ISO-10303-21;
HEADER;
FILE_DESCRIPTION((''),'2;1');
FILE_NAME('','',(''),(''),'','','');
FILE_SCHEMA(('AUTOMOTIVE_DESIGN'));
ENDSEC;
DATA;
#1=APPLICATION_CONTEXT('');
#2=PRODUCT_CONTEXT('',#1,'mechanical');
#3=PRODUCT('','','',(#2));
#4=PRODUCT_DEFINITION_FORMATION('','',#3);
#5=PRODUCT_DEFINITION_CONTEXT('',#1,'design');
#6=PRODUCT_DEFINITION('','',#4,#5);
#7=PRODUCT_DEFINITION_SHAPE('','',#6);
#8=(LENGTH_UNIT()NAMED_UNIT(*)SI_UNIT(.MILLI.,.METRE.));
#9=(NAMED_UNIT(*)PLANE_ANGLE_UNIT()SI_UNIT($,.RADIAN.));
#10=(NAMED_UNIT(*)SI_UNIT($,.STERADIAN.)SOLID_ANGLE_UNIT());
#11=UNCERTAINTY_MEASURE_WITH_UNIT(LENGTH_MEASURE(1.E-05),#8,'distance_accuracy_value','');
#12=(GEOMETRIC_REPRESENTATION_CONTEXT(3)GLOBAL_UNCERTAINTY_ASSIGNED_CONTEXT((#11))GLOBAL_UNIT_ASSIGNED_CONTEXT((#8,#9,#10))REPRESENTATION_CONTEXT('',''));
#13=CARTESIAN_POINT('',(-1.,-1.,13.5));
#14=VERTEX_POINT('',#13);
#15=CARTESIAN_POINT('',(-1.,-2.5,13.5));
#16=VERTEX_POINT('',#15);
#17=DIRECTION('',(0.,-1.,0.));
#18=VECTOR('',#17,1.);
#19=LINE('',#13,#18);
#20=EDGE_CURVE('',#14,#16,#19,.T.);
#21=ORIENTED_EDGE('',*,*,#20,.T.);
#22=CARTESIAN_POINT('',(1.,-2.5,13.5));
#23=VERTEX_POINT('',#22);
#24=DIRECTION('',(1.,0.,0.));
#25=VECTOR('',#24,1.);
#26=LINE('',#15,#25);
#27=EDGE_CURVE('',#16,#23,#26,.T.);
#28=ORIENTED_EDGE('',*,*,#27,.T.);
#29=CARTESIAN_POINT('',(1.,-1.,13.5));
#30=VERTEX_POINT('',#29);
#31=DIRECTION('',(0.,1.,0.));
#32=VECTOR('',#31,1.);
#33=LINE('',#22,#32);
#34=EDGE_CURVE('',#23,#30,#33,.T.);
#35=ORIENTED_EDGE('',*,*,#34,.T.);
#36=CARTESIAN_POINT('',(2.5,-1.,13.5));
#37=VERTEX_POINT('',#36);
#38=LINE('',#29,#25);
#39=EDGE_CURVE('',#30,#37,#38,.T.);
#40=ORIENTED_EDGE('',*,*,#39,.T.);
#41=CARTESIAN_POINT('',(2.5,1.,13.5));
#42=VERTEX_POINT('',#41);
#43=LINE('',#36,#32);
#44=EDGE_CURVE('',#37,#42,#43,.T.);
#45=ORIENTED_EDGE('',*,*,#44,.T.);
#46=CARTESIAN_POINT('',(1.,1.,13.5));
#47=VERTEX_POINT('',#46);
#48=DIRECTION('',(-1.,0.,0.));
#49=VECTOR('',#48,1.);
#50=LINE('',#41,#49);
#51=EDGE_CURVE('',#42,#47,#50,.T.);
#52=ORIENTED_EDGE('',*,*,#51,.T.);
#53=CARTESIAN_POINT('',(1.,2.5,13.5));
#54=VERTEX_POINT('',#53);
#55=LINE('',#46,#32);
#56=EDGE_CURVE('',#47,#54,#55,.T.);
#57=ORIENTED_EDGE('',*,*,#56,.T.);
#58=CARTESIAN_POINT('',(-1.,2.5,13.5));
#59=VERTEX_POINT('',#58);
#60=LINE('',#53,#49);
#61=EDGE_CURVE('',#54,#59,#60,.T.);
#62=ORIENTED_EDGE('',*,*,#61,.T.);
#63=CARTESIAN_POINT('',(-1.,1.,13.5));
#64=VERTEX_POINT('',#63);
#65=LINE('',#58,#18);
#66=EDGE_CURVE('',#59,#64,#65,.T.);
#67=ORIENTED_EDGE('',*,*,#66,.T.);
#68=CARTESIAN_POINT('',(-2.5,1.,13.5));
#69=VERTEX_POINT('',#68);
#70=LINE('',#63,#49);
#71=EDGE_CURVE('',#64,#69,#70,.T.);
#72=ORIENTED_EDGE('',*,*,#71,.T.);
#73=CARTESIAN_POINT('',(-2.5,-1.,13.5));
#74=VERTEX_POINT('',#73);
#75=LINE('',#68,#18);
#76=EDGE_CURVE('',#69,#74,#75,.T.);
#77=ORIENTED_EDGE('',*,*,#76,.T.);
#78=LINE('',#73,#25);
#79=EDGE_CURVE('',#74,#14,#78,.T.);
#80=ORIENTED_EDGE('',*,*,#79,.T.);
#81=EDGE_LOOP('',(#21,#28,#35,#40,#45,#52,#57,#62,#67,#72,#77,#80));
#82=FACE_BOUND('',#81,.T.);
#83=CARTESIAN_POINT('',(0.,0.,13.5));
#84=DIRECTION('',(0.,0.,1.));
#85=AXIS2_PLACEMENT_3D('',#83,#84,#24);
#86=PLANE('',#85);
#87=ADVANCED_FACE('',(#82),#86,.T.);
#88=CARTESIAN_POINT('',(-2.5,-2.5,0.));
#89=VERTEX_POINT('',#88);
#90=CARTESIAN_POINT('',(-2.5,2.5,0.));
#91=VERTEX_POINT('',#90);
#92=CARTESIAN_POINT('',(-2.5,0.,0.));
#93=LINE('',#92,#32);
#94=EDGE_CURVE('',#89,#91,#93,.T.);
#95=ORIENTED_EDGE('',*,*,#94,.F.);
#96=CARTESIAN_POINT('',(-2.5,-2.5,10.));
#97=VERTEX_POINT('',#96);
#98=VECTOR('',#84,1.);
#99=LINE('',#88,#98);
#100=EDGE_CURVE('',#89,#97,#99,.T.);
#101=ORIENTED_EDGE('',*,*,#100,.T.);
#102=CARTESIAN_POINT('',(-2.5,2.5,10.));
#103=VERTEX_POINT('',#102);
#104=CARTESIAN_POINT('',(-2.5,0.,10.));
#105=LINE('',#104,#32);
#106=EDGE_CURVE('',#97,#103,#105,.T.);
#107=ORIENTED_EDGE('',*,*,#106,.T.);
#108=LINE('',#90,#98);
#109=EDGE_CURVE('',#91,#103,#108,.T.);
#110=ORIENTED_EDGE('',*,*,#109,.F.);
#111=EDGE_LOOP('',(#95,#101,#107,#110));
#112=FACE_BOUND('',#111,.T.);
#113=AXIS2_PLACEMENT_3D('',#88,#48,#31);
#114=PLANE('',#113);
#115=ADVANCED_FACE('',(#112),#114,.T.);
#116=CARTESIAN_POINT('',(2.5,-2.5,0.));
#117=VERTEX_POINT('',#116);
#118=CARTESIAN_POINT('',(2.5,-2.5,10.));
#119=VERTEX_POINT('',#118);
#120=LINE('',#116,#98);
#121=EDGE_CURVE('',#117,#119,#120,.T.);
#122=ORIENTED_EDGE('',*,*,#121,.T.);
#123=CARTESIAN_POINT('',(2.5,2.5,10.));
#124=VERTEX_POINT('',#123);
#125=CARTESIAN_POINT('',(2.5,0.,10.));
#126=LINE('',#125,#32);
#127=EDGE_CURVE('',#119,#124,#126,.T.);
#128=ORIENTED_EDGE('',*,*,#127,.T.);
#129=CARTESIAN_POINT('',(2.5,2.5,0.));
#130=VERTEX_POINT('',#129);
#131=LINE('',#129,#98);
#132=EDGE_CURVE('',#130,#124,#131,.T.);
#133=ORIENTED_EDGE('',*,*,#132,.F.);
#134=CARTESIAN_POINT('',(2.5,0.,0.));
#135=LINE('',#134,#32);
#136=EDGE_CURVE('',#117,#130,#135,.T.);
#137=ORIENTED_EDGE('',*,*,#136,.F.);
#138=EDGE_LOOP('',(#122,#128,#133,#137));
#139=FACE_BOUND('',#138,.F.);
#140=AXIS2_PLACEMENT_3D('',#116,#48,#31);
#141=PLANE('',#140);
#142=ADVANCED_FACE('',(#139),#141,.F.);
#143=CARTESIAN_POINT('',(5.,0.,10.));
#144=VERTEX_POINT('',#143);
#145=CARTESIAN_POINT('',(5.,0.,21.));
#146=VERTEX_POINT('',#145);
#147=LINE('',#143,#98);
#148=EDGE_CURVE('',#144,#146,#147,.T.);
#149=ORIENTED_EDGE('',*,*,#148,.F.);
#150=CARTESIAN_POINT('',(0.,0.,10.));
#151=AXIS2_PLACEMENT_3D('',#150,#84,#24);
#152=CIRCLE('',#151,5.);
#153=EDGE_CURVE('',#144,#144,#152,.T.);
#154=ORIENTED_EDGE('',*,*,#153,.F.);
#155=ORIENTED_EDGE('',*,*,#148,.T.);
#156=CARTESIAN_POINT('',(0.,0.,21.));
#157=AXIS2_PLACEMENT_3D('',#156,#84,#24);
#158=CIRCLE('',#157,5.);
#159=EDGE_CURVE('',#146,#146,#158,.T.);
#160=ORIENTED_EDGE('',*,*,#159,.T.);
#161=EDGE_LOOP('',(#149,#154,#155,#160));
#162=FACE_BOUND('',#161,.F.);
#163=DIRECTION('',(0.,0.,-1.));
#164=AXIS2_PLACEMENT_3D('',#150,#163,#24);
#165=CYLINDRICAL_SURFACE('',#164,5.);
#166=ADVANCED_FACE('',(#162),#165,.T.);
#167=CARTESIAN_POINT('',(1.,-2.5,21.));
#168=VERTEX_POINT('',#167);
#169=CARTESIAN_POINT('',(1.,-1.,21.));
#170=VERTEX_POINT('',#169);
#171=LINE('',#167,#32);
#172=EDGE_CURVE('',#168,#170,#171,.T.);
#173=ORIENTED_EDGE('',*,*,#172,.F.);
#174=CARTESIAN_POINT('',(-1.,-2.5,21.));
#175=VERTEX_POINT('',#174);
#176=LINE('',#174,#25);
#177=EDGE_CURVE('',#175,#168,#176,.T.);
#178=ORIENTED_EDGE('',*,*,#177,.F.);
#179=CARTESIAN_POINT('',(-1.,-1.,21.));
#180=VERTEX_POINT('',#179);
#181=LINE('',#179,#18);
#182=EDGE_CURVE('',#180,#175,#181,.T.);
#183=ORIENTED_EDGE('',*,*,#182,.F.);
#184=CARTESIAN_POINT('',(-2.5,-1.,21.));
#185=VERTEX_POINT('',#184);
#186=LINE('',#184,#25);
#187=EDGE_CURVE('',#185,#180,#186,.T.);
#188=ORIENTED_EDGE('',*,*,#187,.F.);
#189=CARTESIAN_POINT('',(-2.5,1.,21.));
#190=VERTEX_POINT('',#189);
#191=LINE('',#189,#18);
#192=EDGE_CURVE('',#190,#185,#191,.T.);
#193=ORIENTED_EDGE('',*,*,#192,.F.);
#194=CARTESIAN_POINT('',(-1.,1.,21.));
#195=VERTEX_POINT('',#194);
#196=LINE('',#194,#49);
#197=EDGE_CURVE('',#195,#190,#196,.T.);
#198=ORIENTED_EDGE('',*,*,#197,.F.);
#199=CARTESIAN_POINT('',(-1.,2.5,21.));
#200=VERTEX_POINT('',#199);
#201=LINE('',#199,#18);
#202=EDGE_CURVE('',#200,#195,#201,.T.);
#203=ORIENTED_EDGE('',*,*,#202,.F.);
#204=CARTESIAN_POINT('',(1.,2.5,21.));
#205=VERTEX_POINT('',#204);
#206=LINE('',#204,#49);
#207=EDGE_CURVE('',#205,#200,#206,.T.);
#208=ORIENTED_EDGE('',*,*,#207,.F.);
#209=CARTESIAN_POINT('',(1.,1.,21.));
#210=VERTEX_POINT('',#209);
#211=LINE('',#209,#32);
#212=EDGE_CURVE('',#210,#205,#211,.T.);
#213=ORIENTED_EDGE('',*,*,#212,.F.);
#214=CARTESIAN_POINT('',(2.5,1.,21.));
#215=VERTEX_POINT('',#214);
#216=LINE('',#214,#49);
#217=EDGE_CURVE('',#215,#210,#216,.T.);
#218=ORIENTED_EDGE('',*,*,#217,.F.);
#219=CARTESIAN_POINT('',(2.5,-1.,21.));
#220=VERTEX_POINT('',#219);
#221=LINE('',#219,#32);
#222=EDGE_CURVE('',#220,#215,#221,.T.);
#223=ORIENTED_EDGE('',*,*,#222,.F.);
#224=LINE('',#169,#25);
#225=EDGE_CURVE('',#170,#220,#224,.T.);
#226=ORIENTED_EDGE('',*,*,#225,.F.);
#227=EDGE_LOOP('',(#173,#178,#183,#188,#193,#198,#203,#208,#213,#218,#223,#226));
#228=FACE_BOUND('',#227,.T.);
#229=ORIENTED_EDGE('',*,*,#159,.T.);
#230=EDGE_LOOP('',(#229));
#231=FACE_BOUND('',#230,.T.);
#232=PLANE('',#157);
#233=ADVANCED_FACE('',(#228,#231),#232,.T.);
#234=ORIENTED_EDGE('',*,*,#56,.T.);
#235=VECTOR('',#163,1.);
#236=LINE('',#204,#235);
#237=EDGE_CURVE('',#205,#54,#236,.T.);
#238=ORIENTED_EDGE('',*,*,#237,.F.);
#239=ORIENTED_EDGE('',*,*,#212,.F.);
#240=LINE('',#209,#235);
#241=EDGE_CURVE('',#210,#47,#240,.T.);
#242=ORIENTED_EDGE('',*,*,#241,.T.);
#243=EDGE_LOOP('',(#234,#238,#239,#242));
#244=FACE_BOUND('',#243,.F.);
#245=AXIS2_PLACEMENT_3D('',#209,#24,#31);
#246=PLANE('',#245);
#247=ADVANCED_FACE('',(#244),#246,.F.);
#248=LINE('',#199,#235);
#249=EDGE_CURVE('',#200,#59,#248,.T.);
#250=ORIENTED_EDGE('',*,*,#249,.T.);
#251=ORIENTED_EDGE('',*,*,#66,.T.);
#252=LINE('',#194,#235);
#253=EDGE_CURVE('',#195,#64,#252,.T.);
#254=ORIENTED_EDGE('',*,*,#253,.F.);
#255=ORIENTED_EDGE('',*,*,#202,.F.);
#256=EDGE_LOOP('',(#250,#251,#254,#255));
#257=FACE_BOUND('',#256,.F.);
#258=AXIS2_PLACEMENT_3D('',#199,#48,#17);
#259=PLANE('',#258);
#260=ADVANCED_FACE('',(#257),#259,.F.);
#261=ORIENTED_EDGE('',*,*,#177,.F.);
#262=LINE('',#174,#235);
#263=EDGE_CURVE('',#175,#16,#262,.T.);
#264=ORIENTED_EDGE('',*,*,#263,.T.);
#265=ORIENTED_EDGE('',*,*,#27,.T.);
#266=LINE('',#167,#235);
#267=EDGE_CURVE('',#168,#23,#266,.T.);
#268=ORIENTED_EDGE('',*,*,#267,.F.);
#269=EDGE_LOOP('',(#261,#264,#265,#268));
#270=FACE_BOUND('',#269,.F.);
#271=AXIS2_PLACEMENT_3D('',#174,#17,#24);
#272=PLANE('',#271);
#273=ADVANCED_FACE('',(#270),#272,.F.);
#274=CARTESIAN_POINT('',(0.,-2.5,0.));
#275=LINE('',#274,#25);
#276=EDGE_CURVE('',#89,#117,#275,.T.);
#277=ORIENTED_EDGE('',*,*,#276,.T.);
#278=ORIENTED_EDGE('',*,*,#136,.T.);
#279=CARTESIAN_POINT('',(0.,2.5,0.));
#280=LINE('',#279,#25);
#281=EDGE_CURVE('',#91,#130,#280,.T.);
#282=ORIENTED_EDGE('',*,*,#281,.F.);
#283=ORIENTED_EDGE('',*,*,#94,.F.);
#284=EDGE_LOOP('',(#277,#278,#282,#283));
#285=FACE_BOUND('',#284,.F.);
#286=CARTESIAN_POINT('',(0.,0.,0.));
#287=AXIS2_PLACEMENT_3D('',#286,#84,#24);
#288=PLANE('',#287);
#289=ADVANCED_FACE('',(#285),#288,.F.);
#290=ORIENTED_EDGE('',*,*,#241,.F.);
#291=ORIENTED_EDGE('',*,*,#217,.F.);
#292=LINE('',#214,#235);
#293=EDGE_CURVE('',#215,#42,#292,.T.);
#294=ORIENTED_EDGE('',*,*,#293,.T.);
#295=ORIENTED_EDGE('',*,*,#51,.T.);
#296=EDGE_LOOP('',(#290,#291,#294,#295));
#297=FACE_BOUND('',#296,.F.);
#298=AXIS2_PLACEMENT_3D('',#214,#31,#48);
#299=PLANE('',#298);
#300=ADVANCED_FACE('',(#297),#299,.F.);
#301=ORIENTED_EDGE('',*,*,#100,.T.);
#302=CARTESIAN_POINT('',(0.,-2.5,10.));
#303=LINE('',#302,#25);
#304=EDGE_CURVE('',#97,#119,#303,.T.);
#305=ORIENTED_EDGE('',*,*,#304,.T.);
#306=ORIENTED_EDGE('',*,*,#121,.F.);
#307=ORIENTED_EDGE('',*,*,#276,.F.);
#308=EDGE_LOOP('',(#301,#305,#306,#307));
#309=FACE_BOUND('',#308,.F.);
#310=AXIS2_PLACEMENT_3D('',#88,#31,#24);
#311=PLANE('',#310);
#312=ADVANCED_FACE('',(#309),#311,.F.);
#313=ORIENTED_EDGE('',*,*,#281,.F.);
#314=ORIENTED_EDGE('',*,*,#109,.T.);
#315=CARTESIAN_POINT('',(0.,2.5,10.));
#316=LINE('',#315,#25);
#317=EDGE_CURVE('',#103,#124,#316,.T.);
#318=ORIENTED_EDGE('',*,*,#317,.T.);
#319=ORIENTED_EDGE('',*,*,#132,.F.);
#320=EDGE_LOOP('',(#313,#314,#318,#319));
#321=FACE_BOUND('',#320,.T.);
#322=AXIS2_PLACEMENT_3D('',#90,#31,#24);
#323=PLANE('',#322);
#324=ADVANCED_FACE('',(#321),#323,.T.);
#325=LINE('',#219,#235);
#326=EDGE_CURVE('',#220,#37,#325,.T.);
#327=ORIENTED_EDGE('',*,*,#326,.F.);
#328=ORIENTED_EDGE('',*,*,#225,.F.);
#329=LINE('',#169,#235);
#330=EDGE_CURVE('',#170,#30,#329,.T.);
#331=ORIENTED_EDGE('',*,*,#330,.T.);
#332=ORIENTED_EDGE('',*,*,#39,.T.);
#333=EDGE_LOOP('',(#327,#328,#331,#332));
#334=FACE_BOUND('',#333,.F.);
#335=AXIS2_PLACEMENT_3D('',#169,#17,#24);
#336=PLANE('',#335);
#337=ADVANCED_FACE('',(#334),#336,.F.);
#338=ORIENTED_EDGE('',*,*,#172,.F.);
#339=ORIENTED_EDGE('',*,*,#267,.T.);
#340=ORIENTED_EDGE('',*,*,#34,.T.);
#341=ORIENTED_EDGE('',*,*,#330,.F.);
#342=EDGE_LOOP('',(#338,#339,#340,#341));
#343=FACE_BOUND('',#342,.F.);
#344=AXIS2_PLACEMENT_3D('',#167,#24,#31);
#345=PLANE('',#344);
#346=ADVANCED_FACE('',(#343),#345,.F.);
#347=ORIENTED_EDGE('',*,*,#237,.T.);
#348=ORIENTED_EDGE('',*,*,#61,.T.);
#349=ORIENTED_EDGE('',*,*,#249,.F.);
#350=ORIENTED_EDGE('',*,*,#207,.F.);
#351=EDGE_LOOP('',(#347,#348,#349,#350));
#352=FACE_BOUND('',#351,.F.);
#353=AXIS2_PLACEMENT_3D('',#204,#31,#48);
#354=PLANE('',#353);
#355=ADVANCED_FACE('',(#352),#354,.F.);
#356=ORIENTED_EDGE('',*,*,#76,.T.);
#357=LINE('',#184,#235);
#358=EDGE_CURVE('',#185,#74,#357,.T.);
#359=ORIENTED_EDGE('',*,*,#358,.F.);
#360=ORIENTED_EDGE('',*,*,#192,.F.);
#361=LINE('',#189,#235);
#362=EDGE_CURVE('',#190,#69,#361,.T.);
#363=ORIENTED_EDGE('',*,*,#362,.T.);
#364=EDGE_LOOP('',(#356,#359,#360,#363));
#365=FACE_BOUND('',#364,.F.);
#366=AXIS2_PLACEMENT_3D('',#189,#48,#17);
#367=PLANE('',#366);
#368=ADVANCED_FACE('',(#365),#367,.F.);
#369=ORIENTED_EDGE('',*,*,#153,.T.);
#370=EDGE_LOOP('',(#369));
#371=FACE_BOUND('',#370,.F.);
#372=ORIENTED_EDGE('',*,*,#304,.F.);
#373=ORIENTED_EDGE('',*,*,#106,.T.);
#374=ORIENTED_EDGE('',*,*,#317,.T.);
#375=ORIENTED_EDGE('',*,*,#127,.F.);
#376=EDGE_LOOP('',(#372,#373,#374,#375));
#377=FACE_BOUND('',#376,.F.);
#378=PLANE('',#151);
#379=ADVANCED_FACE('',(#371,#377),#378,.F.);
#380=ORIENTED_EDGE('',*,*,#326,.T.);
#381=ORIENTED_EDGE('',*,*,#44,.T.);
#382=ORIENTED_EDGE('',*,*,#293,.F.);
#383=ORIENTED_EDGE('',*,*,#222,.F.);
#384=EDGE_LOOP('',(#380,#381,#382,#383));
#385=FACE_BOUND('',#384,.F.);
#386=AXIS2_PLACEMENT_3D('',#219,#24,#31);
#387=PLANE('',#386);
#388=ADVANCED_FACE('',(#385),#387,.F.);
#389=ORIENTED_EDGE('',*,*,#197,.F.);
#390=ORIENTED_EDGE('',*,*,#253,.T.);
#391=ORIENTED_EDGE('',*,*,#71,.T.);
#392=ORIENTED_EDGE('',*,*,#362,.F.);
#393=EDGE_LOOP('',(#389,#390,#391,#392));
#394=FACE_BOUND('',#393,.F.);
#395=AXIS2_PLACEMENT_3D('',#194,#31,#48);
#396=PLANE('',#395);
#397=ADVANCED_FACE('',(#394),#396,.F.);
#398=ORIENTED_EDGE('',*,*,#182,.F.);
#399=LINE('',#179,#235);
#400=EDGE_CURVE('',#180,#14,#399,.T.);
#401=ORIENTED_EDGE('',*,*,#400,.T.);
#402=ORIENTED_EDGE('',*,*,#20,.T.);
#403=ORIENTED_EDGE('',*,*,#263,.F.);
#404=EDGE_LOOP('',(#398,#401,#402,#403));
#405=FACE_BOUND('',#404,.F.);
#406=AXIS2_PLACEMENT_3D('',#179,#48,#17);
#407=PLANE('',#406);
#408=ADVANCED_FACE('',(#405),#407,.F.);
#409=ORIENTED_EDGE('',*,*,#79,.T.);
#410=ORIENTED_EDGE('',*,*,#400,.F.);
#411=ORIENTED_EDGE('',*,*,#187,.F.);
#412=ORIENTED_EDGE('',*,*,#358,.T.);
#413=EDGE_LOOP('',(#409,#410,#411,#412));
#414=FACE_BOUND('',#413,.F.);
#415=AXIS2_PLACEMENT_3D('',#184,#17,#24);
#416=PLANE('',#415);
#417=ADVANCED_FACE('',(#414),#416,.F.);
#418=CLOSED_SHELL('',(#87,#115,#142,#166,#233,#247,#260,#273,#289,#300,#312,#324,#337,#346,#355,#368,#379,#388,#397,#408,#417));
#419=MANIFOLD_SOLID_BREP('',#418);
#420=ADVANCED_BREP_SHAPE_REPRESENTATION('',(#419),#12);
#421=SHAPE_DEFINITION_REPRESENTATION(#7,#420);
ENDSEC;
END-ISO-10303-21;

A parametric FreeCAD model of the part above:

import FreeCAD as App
import Part
import Sketcher
from FreeCAD import Vector

doc = App.newDocument("Part")
body = doc.addObject("PartDesign::Body", "Body")

# Sketch on XY plane
sketch1 = body.newObject("Sketcher::SketchObject", "Sketch")
sketch1.AttachmentSupport = (doc.getObject("XY_Plane"), [""])
sketch1.MapMode = "FlatFace"
sketch1.addGeometry([
    Part.LineSegment(Vector(-2, 2, 0), Vector(-2, -2, 0)),
    Part.LineSegment(Vector(-2, -2, 0), Vector(2, -2, 0)),
    Part.LineSegment(Vector(2, -2, 0), Vector(2, 2, 0)),
    Part.LineSegment(Vector(2, 2, 0), Vector(-2, 2, 0)),
], False)
sketch1.addConstraint([
    Sketcher.Constraint("Coincident", 0, 2, 1, 1),
    Sketcher.Constraint("Coincident", 1, 2, 2, 1),
    Sketcher.Constraint("Coincident", 2, 2, 3, 1),
    Sketcher.Constraint("Coincident", 3, 2, 0, 1),
    Sketcher.Constraint("Vertical", 0),
    Sketcher.Constraint("Horizontal", 1),
    Sketcher.Constraint("Vertical", 2),
    Sketcher.Constraint("Horizontal", 3),
    Sketcher.Constraint("Symmetric", 0, 2, 2, 2, -1, 1),
    Sketcher.Constraint("Equal", 3, 0),
    Sketcher.Constraint("DistanceX", 1, 1, 1, 2, 5.0),
])
pad1 = body.newObject("PartDesign::Pad", "Pad")
pad1.Profile = sketch1
pad1.Length = 10

# Sketch on XY plane
sketch2 = body.newObject("Sketcher::SketchObject", "Sketch001")
sketch2.AttachmentSupport = (doc.getObject("XY_Plane"), [""])
sketch2.MapMode = "FlatFace"
sketch2.AttachmentOffset = App.Placement(Vector(0, 0, 10), App.Rotation())
sketch2.addGeometry(Part.Circle(Vector(0, 0, 0), Vector(0, 0, 1), 5), False)
sketch2.addConstraint([
    Sketcher.Constraint("Coincident", 0, 3, -1, 1),
    Sketcher.Constraint("Diameter", 0, 10.0),
])
pad2 = body.newObject("PartDesign::Pad", "Pad001")
pad2.Profile = sketch2
pad2.Length = 11

# Sketch on XY plane
sketch3 = body.newObject("Sketcher::SketchObject", "Sketch002")
sketch3.AttachmentSupport = (doc.getObject("XY_Plane"), [""])
sketch3.MapMode = "FlatFace"
sketch3.AttachmentOffset = App.Placement(Vector(0, 0, 21), App.Rotation())
sketch3.addGeometry([
    Part.LineSegment(Vector(1, 2.5, 0), Vector(-1, 2.5, 0)),  # 0
    Part.LineSegment(Vector(-1, 2.5, 0), Vector(-1, 1, 0)),  # 1
    Part.LineSegment(Vector(-1, 1, 0), Vector(-2.5, 1, 0)),  # 2
    Part.LineSegment(Vector(-2.5, 1, 0), Vector(-2.5, -1, 0)),  # 3
    Part.LineSegment(Vector(-2.5, -1, 0), Vector(-1, -1, 0)),  # 4
    Part.LineSegment(Vector(-1, -1, 0), Vector(-1, -2.5, 0)),  # 5
    Part.LineSegment(Vector(-1, -2.5, 0), Vector(1, -2.5, 0)),  # 6
    Part.LineSegment(Vector(1, -2.5, 0), Vector(1, -1, 0)),  # 7
    Part.LineSegment(Vector(1, -1, 0), Vector(2.5, -1, 0)),  # 8
    Part.LineSegment(Vector(2.5, -1, 0), Vector(2.5, 1, 0)),  # 9
    Part.LineSegment(Vector(2.5, 1, 0), Vector(1, 1, 0)),  # 10
    Part.LineSegment(Vector(1, 1, 0), Vector(1, 2.5, 0)),  # 11
], False)
sketch3.addConstraint([
    Sketcher.Constraint("Coincident", 0, 2, 1, 1),
    Sketcher.Constraint("Coincident", 1, 2, 2, 1),
    Sketcher.Constraint("Coincident", 2, 2, 3, 1),
    Sketcher.Constraint("Coincident", 3, 2, 4, 1),
    Sketcher.Constraint("Coincident", 4, 2, 5, 1),
    Sketcher.Constraint("Coincident", 5, 2, 6, 1),
    Sketcher.Constraint("Coincident", 6, 2, 7, 1),
    Sketcher.Constraint("Coincident", 7, 2, 8, 1),
    Sketcher.Constraint("Coincident", 8, 2, 9, 1),
    Sketcher.Constraint("Coincident", 9, 2, 10, 1),
    Sketcher.Constraint("Coincident", 10, 2, 11, 1),
    Sketcher.Constraint("Coincident", 11, 2, 0, 1),
    Sketcher.Constraint("Horizontal", 0),
    Sketcher.Constraint("Vertical", 1),
    Sketcher.Constraint("Horizontal", 2),
    Sketcher.Constraint("Vertical", 3),
    Sketcher.Constraint("Horizontal", 4),
    Sketcher.Constraint("Vertical", 5),
    Sketcher.Constraint("Horizontal", 6),
    Sketcher.Constraint("Vertical", 7),
    Sketcher.Constraint("Horizontal", 8),
    Sketcher.Constraint("Vertical", 9),
    Sketcher.Constraint("Horizontal", 10),
    Sketcher.Constraint("Vertical", 11),
    Sketcher.Constraint("Symmetric", 0, 2, 6, 2, -1, 1),
    Sketcher.Constraint("Symmetric", 2, 2, 8, 2, -1, 1),
    Sketcher.Constraint("Symmetric", 4, 2, 10, 2, -1, 1),
    Sketcher.Constraint("Symmetric", 4, 2, 7, 2, -2),
    Sketcher.Constraint("Equal", 10, 1),
    Sketcher.Constraint("Equal", 6, 3),
    Sketcher.Constraint("DistanceX", 0, 2, 0, 1, 2.0),
    Sketcher.Constraint("DistanceX", 2, 2, 2, 1, 1.5),
])
pocket1 = body.newObject("PartDesign::Pocket", "Pocket")
pocket1.Profile = sketch3
pocket1.Length = 7.5

doc.recompute()
